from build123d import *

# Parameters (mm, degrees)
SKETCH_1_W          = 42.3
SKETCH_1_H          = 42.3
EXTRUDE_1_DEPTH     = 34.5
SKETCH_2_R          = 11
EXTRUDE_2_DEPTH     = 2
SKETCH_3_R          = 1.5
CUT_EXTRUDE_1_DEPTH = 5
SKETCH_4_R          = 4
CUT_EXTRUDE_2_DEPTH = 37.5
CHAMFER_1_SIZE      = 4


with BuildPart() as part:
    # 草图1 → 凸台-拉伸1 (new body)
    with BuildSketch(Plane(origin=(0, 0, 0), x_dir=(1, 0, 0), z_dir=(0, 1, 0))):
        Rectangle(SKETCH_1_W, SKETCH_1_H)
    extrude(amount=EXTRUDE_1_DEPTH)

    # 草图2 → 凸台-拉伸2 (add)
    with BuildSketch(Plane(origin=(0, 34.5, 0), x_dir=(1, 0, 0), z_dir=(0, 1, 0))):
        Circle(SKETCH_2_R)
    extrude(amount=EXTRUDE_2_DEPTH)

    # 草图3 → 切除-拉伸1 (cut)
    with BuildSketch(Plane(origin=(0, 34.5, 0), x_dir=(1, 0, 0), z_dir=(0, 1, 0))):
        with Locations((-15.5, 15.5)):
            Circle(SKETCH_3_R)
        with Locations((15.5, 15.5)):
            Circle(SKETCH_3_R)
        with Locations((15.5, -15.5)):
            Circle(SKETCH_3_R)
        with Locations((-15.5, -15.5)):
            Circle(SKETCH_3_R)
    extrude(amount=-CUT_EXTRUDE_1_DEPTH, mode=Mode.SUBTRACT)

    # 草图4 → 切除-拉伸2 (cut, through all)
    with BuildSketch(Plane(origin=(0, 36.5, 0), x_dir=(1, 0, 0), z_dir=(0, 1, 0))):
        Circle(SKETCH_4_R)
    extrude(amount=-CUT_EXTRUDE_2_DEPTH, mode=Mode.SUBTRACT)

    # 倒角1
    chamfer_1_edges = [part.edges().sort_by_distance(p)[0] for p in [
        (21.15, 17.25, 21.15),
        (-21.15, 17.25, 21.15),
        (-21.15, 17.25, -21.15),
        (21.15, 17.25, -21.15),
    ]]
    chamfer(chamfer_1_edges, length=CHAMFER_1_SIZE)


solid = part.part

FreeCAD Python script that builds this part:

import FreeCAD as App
import Part
import Sketcher

V = App.Vector


def edges_at(feature, points):
    """Names of the edges that pass closest to the given points."""
    edges = feature.Shape.Edges
    near = lambda p: min(range(len(edges)), key=lambda i: edges[i].distToShape(Part.Vertex(*p))[0])
    return sorted({f"Edge{near(p) + 1}" for p in points})

doc = App.newDocument("Part")
body = doc.addObject("PartDesign::Body", "Body")

sketch1 = body.newObject("Sketcher::SketchObject", "Sketch")
sketch1.AttachmentSupport = (doc.getObject("XZ_Plane"), [""])
sketch1.MapMode = "FlatFace"
sketch1.addGeometry(Part.LineSegment(V(-21.15, -21.15, 0), V(-21.15, 21.15, 0)), False)
sketch1.addGeometry(Part.LineSegment(V(-21.15, 21.15, 0), V(21.15, 21.15, 0)), False)
sketch1.addGeometry(Part.LineSegment(V(21.15, 21.15, 0), V(21.15, -21.15, 0)), False)
sketch1.addGeometry(Part.LineSegment(V(21.15, -21.15, 0), V(-21.15, -21.15, 0)), False)
sketch1.addConstraint(Sketcher.Constraint("Coincident", 0, 2, 1, 1))
sketch1.addConstraint(Sketcher.Constraint("Coincident", 1, 2, 2, 1))
sketch1.addConstraint(Sketcher.Constraint("Coincident", 2, 2, 3, 1))
sketch1.addConstraint(Sketcher.Constraint("Coincident", 3, 2, 0, 1))
sketch1.addConstraint(Sketcher.Constraint("Vertical", 0))
sketch1.addConstraint(Sketcher.Constraint("Horizontal", 1))
sketch1.addConstraint(Sketcher.Constraint("Vertical", 2))
sketch1.addConstraint(Sketcher.Constraint("Horizontal", 3))
sketch1.addConstraint(Sketcher.Constraint("Symmetric", 0, 2, 2, 2, -1, 1))
sketch1.addConstraint(Sketcher.Constraint("Equal", 3, 0))
sketch1.addConstraint(Sketcher.Constraint("DistanceX", 1, 1, 1, 2, 42.3))
pad1 = body.newObject("PartDesign::Pad", "Pad")
pad1.Profile = sketch1
pad1.Length = 34.5
pad1.Reversed = True

sketch2 = body.newObject("Sketcher::SketchObject", "Sketch001")
sketch2.AttachmentSupport = (doc.getObject("XZ_Plane"), [""])
sketch2.MapMode = "FlatFace"
sketch2.AttachmentOffset = App.Placement(V(0, 0, -34.5), App.Rotation())
sketch2.addGeometry(Part.Circle(V(0, 0, 0), V(0, 0, 1), 11), False)
sketch2.addConstraint(Sketcher.Constraint("Coincident", 0, 3, -1, 1))
sketch2.addConstraint(Sketcher.Constraint("Diameter", 0, 22.0))
pad2 = body.newObject("PartDesign::Pad", "Pad001")
pad2.Profile = sketch2
pad2.Length = 2
pad2.Reversed = True

sketch3 = body.newObject("Sketcher::SketchObject", "Sketch002")
sketch3.AttachmentSupport = (doc.getObject("XZ_Plane"), [""])
sketch3.MapMode = "FlatFace"
sketch3.AttachmentOffset = App.Placement(V(0, 0, -34.5), App.Rotation())
sketch3.addGeometry(Part.Circle(V(-15.5, -15.5, 0), V(0, 0, 1), 1.5), False)
sketch3.addGeometry(Part.Circle(V(15.5, -15.5, 0), V(0, 0, 1), 1.5), False)
sketch3.addGeometry(Part.Circle(V(15.5, 15.5, 0), V(0, 0, 1), 1.5), False)
sketch3.addGeometry(Part.Circle(V(-15.5, 15.5, 0), V(0, 0, 1), 1.5), False)
sketch3.addConstraint(Sketcher.Constraint("Equal", 0, 1))
sketch3.addConstraint(Sketcher.Constraint("Equal", 1, 2))
sketch3.addConstraint(Sketcher.Constraint("Equal", 2, 3))
sketch3.addConstraint(Sketcher.Constraint("Symmetric", 0, 3, 2, 3, -1, 1))
sketch3.addConstraint(Sketcher.Constraint("Symmetric", 1, 3, 3, 3, -1, 1))
sketch3.addConstraint(Sketcher.Constraint("Symmetric", 0, 3, 1, 3, -2))
sketch3.addConstraint(Sketcher.Constraint("Diameter", 0, 3.0))
sketch3.addConstraint(Sketcher.Constraint("DistanceX", 0, 3, 1, 3, 31.0))
sketch3.addConstraint(Sketcher.Constraint("DistanceY", 1, 3, 2, 3, 31.0))
pocket1 = body.newObject("PartDesign::Pocket", "Pocket")
pocket1.Profile = sketch3
pocket1.Length = 5
pocket1.Reversed = True

sketch4 = body.newObject("Sketcher::SketchObject", "Sketch003")
sketch4.AttachmentSupport = (doc.getObject("XZ_Plane"), [""])
sketch4.MapMode = "FlatFace"
sketch4.AttachmentOffset = App.Placement(V(0, 0, -36.5), App.Rotation())
sketch4.addGeometry(Part.Circle(V(0, 0, 0), V(0, 0, 1), 4), False)
sketch4.addConstraint(Sketcher.Constraint("Coincident", 0, 3, -1, 1))
sketch4.addConstraint(Sketcher.Constraint("Diameter", 0, 8.0))
pocket2 = body.newObject("PartDesign::Pocket", "Pocket001")
pocket2.Profile = sketch4
pocket2.Type = "ThroughAll"
pocket2.Reversed = True
doc.recompute()

chamfer = body.newObject("PartDesign::Chamfer", "Chamfer")
chamfer.Base = (pocket2, edges_at(pocket2, [
    (21.15, 17.25, 21.15),
    (-21.15, 17.25, 21.15),
    (-21.15, 17.25, -21.15),
    (21.15, 17.25, -21.15),
]))
chamfer.Size = 4

doc.recompute()
